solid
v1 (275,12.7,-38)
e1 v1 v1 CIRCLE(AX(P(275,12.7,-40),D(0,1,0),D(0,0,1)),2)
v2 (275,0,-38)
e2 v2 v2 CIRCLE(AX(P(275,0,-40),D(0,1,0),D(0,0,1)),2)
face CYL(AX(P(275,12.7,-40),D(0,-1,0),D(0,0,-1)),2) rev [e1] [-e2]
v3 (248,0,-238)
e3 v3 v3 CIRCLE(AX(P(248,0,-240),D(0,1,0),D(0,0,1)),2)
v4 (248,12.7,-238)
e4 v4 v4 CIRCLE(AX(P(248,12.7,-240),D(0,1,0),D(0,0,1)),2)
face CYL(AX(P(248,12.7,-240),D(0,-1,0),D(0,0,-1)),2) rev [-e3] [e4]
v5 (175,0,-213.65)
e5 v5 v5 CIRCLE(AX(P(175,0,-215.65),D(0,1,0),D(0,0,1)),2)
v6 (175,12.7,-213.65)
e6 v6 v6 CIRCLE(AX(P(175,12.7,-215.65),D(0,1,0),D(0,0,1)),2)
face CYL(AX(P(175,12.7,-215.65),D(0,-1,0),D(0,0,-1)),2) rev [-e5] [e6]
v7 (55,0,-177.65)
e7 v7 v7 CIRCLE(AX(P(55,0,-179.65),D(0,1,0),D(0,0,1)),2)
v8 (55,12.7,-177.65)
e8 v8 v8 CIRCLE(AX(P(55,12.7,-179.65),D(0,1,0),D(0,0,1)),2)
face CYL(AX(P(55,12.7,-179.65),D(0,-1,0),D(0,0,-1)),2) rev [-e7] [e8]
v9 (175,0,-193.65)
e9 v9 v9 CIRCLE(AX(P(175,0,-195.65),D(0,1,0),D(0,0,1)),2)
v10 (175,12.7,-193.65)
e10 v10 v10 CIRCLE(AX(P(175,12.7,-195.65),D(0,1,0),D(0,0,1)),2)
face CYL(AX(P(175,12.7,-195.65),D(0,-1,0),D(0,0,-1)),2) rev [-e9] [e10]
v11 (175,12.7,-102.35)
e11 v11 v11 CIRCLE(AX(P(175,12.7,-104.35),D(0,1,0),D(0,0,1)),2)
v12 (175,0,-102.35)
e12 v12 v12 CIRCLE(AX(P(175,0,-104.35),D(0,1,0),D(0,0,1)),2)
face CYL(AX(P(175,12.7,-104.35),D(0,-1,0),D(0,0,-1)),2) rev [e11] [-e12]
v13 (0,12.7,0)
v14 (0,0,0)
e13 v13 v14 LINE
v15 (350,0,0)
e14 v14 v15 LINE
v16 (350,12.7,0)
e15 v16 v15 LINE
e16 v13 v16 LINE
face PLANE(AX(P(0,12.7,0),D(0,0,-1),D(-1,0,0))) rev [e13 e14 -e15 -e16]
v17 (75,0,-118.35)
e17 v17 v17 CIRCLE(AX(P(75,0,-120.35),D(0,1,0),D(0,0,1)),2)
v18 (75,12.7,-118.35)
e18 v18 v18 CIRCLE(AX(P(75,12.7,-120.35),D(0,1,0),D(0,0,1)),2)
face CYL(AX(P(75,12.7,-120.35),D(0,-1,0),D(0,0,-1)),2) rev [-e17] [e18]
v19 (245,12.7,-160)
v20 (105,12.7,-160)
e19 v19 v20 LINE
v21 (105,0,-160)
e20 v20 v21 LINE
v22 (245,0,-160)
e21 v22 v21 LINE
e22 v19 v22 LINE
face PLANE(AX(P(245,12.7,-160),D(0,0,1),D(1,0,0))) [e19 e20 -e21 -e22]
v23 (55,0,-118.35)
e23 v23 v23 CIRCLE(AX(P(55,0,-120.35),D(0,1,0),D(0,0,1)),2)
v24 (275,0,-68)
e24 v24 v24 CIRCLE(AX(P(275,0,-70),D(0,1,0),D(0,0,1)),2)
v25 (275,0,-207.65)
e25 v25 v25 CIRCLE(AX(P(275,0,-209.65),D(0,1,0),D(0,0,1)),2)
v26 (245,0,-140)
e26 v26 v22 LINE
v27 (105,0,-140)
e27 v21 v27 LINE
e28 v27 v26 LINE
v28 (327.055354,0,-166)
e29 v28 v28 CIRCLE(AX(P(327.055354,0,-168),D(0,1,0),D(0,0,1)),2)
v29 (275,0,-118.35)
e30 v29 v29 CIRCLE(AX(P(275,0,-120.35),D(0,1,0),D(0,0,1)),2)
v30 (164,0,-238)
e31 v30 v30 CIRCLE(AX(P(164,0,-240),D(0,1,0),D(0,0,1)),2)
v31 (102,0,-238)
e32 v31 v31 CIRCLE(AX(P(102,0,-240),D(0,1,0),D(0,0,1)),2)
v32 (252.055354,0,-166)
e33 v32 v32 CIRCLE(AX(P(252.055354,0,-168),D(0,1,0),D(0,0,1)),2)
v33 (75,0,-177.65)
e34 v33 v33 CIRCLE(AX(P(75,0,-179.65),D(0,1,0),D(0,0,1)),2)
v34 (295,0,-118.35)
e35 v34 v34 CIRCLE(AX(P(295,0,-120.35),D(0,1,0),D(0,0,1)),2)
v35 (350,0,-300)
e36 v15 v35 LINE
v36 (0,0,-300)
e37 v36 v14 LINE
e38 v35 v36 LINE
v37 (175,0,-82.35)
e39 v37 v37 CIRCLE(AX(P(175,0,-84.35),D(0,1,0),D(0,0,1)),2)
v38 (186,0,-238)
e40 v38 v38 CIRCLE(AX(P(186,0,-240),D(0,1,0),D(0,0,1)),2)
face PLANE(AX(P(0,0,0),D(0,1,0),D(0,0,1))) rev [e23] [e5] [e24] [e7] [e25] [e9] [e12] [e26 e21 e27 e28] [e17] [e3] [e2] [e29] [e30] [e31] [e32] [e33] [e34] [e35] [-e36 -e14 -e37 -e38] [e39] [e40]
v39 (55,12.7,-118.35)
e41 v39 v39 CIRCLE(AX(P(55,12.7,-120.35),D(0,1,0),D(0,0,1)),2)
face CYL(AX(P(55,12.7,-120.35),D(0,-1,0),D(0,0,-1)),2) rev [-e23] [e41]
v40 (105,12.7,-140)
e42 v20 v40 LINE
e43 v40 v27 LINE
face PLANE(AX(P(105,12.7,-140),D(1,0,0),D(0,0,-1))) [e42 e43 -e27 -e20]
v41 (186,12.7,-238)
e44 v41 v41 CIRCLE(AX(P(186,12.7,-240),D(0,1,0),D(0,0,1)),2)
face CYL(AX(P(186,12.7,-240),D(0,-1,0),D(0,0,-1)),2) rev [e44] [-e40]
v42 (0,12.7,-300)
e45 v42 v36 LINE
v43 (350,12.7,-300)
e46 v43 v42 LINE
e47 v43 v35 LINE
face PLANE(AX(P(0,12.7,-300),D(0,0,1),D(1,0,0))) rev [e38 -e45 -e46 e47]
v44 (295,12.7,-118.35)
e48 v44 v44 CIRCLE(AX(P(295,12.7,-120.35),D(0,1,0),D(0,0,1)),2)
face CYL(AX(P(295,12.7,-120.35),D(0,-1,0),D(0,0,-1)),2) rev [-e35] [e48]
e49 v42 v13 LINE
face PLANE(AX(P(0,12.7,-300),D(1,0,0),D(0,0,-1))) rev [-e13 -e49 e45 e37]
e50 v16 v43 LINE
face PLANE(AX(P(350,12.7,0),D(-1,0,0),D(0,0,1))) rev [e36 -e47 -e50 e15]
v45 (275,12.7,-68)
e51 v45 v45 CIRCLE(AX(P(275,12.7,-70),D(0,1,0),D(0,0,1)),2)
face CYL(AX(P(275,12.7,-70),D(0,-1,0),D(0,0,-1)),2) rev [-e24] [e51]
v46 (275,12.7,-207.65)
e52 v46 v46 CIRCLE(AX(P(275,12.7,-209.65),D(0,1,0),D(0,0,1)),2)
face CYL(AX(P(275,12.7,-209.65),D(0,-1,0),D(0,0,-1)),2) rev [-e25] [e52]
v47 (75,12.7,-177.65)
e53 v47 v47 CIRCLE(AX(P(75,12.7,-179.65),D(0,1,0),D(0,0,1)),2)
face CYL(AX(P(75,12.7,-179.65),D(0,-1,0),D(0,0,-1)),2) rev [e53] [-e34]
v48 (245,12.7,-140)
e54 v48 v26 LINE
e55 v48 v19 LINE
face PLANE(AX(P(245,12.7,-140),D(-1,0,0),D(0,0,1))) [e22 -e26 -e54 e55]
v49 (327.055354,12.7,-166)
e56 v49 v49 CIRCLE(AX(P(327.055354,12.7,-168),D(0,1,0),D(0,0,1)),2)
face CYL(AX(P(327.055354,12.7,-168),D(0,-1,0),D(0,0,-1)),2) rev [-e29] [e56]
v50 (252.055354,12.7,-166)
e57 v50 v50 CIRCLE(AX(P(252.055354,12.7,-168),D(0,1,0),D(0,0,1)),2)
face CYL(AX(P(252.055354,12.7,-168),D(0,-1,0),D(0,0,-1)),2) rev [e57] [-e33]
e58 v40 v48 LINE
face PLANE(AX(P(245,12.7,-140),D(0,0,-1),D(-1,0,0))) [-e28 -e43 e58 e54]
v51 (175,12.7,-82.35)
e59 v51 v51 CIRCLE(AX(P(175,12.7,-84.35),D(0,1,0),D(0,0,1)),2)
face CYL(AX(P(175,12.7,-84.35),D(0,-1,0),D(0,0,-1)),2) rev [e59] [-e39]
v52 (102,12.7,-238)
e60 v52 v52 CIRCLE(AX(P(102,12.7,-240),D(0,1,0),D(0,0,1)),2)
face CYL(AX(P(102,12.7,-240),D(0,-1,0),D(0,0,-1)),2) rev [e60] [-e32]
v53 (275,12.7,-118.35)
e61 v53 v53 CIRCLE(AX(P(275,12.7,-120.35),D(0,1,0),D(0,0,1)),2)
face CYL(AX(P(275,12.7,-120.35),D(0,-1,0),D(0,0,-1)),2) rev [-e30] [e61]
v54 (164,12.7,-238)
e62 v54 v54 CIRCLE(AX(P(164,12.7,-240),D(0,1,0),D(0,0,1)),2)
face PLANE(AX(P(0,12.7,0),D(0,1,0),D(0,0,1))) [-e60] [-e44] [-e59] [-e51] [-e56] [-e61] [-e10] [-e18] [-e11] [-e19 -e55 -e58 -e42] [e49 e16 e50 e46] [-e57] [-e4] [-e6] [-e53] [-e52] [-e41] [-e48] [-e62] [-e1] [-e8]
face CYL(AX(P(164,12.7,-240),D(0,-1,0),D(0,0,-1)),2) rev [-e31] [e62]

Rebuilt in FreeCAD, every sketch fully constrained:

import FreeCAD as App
import Part
import Sketcher

V = App.Vector


def add_polygon(sketch, points):
    """Adds a closed chain of lines whose ends are joined by coincident constraints."""
    first, n = sketch.GeometryCount, len(points)
    for a, b in zip(points, points[1:] + points[:1]):
        sketch.addGeometry(Part.LineSegment(App.Vector(*a, 0), App.Vector(*b, 0)), False)
    for i in range(n):
        sketch.addConstraint(Sketcher.Constraint("Coincident", first + i, 2, first + (i + 1) % n, 1))

doc = App.newDocument("Part")
body = doc.addObject("PartDesign::Body", "Body")

sketch1 = body.newObject("Sketcher::SketchObject", "Sketch")
sketch1.AttachmentSupport = (doc.getObject("XZ_Plane"), [""])
sketch1.MapMode = "FlatFace"
add_polygon(sketch1, [(0, -300), (0, 0), (350, 0), (350, -300)])
sketch1.addGeometry(Part.Circle(V(175, -84.35, 0), V(0, 0, 1), 2), False)
sketch1.addGeometry(Part.Circle(V(55, -120.35, 0), V(0, 0, 1), 2), False)
sketch1.addGeometry(Part.Circle(V(75, -120.35, 0), V(0, 0, 1), 2), False)
sketch1.addGeometry(Part.Circle(V(175, -104.35, 0), V(0, 0, 1), 2), False)
sketch1.addGeometry(Part.Circle(V(275, -40, 0), V(0, 0, 1), 2), False)
sketch1.addGeometry(Part.Circle(V(275, -70, 0), V(0, 0, 1), 2), False)
sketch1.addGeometry(Part.Circle(V(275, -120.35, 0), V(0, 0, 1), 2), False)
sketch1.addGeometry(Part.Circle(V(295, -120.35, 0), V(0, 0, 1), 2), False)
sketch1.addGeometry(Part.Circle(V(55, -179.65, 0), V(0, 0, 1), 2), False)
sketch1.addGeometry(Part.Circle(V(75, -179.65, 0), V(0, 0, 1), 2), False)
add_polygon(sketch1, [(245, -140), (105, -140), (105, -160), (245, -160)])
sketch1.addGeometry(Part.Circle(V(102, -240, 0), V(0, 0, 1), 2), False)
sketch1.addGeometry(Part.Circle(V(175, -195.65, 0), V(0, 0, 1), 2), False)
sketch1.addGeometry(Part.Circle(V(175, -215.65, 0), V(0, 0, 1), 2), False)
sketch1.addGeometry(Part.Circle(V(164, -240, 0), V(0, 0, 1), 2), False)
sketch1.addGeometry(Part.Circle(V(186, -240, 0), V(0, 0, 1), 2), False)
sketch1.addGeometry(Part.Circle(V(252.055354, -168, 0), V(0, 0, 1), 2), False)
sketch1.addGeometry(Part.Circle(V(327.055354, -168, 0), V(0, 0, 1), 2), False)
sketch1.addGeometry(Part.Circle(V(248, -240, 0), V(0, 0, 1), 2), False)
sketch1.addGeometry(Part.Circle(V(275, -209.65, 0), V(0, 0, 1), 2), False)
sketch1.addConstraint([
    Sketcher.Constraint("Vertical", 0),
    Sketcher.Constraint("Horizontal", 1),
    Sketcher.Constraint("Vertical", 2),
    Sketcher.Constraint("Horizontal", 3),
    Sketcher.Constraint("Horizontal", 14),
    Sketcher.Constraint("Vertical", 15),
    Sketcher.Constraint("Horizontal", 16),
    Sketcher.Constraint("Vertical", 17),
    Sketcher.Constraint("Coincident", 0, 2, -1, 1),
    Sketcher.Constraint("Equal", 4, 5),
    Sketcher.Constraint("Equal", 5, 6),
    Sketcher.Constraint("Equal", 6, 7),
    Sketcher.Constraint("Equal", 7, 8),
    Sketcher.Constraint("Equal", 8, 9),
    Sketcher.Constraint("Equal", 9, 10),
    Sketcher.Constraint("Equal", 10, 11),
    Sketcher.Constraint("Equal", 11, 12),
    Sketcher.Constraint("Equal", 12, 13),
    Sketcher.Constraint("Equal", 13, 18),
    Sketcher.Constraint("Equal", 18, 19),
    Sketcher.Constraint("Equal", 19, 20),
    Sketcher.Constraint("Equal", 20, 21),
    Sketcher.Constraint("Equal", 21, 22),
    Sketcher.Constraint("Equal", 22, 23),
    Sketcher.Constraint("Equal", 23, 24),
    Sketcher.Constraint("Equal", 24, 25),
    Sketcher.Constraint("Equal", 25, 26),
    Sketcher.Constraint("Horizontal", 5, 3, 6, 3),
    Sketcher.Constraint("Horizontal", 6, 3, 10, 3),
    Sketcher.Constraint("Horizontal", 10, 3, 11, 3),
    Sketcher.Constraint("Horizontal", 12, 3, 13, 3),
    Sketcher.Constraint("Horizontal", 18, 3, 21, 3),
    Sketcher.Constraint("Horizontal", 21, 3, 22, 3),
    Sketcher.Constraint("Horizontal", 23, 3, 24, 3),
    Sketcher.Constraint("Horizontal", 22, 3, 25, 3),
    Sketcher.Constraint("Vertical", 4, 3, 7, 3),
    Sketcher.Constraint("Vertical", 8, 3, 9, 3),
    Sketcher.Constraint("Vertical", 9, 3, 10, 3),
    Sketcher.Constraint("Vertical", 5, 3, 12, 3),
    Sketcher.Constraint("Vertical", 6, 3, 13, 3),
    Sketcher.Constraint("Vertical", 7, 3, 19, 3),
    Sketcher.Constraint("Vertical", 19, 3, 20, 3),
    Sketcher.Constraint("Vertical", 10, 3, 26, 3),
    Sketcher.Constraint("Diameter", 4, 4.0),
    Sketcher.Constraint("DistanceX", 1, 1, 1, 2, 350.0),
    Sketcher.Constraint("DistanceX", 14, 2, 14, 1, 140.0),
    Sketcher.Constraint("DistanceY", 0, 1, 0, 2, 300.0),
    Sketcher.Constraint("DistanceY", 15, 2, 15, 1, 20.0),
    Sketcher.Constraint("DistanceX", -1, 1, 4, 3, 175.0),
    Sketcher.Constraint("DistanceX", -1, 1, 5, 3, 55.0),
    Sketcher.Constraint("DistanceX", -1, 1, 6, 3, 75.0),
    Sketcher.Constraint("DistanceX", -1, 1, 8, 3, 275.0),
    Sketcher.Constraint("DistanceY", 8, 3, -1, 1, 40.0),
    Sketcher.Constraint("DistanceY", 9, 3, -1, 1, 70.0),
    Sketcher.Constraint("DistanceX", -1, 1, 11, 3, 295.0),
    Sketcher.Constraint("DistanceX", -1, 1, 18, 3, 102.0),
    Sketcher.Constraint("DistanceY", 18, 3, -1, 1, 240.0),
    Sketcher.Constraint("DistanceX", -1, 1, 21, 3, 164.0),
    Sketcher.Constraint("DistanceX", -1, 1, 22, 3, 186.0),
    Sketcher.Constraint("DistanceY", 23, 3, -1, 1, 168.0),
    Sketcher.Constraint("DistanceX", -1, 1, 25, 3, 248.0),
    Sketcher.Constraint("DistanceX", -1, 1, 14, 2, 105.0),
    Sketcher.Constraint("DistanceY", 14, 2, -1, 1, 140.0),
    Sketcher.Constraint("DistanceY", 5, 3, 4, 3, 36.0),
    Sketcher.Constraint("DistanceY", 7, 3, 4, 3, 20.0),
    Sketcher.Constraint("DistanceY", 19, 3, 13, 3, 16.0),
    Sketcher.Constraint("DistanceY", 20, 3, 19, 3, 20.0),
    Sketcher.Constraint("DistanceX", 23, 3, 24, 3, 75.0),
    Sketcher.Constraint("DistanceY", 12, 3, 5, 3, 59.3),
    Sketcher.Constraint("DistanceY", 26, 3, 10, 3, 89.3),
    Sketcher.Constraint("DistanceY", 4, 3, -1, 1, 84.35),
    Sketcher.Constraint("DistanceX", -1, 1, 23, 3, 252.055354),
])
pad1 = body.newObject("PartDesign::Pad", "Pad")
pad1.Profile = sketch1
pad1.Length = 12.7
pad1.Reversed = True

doc.recompute()
